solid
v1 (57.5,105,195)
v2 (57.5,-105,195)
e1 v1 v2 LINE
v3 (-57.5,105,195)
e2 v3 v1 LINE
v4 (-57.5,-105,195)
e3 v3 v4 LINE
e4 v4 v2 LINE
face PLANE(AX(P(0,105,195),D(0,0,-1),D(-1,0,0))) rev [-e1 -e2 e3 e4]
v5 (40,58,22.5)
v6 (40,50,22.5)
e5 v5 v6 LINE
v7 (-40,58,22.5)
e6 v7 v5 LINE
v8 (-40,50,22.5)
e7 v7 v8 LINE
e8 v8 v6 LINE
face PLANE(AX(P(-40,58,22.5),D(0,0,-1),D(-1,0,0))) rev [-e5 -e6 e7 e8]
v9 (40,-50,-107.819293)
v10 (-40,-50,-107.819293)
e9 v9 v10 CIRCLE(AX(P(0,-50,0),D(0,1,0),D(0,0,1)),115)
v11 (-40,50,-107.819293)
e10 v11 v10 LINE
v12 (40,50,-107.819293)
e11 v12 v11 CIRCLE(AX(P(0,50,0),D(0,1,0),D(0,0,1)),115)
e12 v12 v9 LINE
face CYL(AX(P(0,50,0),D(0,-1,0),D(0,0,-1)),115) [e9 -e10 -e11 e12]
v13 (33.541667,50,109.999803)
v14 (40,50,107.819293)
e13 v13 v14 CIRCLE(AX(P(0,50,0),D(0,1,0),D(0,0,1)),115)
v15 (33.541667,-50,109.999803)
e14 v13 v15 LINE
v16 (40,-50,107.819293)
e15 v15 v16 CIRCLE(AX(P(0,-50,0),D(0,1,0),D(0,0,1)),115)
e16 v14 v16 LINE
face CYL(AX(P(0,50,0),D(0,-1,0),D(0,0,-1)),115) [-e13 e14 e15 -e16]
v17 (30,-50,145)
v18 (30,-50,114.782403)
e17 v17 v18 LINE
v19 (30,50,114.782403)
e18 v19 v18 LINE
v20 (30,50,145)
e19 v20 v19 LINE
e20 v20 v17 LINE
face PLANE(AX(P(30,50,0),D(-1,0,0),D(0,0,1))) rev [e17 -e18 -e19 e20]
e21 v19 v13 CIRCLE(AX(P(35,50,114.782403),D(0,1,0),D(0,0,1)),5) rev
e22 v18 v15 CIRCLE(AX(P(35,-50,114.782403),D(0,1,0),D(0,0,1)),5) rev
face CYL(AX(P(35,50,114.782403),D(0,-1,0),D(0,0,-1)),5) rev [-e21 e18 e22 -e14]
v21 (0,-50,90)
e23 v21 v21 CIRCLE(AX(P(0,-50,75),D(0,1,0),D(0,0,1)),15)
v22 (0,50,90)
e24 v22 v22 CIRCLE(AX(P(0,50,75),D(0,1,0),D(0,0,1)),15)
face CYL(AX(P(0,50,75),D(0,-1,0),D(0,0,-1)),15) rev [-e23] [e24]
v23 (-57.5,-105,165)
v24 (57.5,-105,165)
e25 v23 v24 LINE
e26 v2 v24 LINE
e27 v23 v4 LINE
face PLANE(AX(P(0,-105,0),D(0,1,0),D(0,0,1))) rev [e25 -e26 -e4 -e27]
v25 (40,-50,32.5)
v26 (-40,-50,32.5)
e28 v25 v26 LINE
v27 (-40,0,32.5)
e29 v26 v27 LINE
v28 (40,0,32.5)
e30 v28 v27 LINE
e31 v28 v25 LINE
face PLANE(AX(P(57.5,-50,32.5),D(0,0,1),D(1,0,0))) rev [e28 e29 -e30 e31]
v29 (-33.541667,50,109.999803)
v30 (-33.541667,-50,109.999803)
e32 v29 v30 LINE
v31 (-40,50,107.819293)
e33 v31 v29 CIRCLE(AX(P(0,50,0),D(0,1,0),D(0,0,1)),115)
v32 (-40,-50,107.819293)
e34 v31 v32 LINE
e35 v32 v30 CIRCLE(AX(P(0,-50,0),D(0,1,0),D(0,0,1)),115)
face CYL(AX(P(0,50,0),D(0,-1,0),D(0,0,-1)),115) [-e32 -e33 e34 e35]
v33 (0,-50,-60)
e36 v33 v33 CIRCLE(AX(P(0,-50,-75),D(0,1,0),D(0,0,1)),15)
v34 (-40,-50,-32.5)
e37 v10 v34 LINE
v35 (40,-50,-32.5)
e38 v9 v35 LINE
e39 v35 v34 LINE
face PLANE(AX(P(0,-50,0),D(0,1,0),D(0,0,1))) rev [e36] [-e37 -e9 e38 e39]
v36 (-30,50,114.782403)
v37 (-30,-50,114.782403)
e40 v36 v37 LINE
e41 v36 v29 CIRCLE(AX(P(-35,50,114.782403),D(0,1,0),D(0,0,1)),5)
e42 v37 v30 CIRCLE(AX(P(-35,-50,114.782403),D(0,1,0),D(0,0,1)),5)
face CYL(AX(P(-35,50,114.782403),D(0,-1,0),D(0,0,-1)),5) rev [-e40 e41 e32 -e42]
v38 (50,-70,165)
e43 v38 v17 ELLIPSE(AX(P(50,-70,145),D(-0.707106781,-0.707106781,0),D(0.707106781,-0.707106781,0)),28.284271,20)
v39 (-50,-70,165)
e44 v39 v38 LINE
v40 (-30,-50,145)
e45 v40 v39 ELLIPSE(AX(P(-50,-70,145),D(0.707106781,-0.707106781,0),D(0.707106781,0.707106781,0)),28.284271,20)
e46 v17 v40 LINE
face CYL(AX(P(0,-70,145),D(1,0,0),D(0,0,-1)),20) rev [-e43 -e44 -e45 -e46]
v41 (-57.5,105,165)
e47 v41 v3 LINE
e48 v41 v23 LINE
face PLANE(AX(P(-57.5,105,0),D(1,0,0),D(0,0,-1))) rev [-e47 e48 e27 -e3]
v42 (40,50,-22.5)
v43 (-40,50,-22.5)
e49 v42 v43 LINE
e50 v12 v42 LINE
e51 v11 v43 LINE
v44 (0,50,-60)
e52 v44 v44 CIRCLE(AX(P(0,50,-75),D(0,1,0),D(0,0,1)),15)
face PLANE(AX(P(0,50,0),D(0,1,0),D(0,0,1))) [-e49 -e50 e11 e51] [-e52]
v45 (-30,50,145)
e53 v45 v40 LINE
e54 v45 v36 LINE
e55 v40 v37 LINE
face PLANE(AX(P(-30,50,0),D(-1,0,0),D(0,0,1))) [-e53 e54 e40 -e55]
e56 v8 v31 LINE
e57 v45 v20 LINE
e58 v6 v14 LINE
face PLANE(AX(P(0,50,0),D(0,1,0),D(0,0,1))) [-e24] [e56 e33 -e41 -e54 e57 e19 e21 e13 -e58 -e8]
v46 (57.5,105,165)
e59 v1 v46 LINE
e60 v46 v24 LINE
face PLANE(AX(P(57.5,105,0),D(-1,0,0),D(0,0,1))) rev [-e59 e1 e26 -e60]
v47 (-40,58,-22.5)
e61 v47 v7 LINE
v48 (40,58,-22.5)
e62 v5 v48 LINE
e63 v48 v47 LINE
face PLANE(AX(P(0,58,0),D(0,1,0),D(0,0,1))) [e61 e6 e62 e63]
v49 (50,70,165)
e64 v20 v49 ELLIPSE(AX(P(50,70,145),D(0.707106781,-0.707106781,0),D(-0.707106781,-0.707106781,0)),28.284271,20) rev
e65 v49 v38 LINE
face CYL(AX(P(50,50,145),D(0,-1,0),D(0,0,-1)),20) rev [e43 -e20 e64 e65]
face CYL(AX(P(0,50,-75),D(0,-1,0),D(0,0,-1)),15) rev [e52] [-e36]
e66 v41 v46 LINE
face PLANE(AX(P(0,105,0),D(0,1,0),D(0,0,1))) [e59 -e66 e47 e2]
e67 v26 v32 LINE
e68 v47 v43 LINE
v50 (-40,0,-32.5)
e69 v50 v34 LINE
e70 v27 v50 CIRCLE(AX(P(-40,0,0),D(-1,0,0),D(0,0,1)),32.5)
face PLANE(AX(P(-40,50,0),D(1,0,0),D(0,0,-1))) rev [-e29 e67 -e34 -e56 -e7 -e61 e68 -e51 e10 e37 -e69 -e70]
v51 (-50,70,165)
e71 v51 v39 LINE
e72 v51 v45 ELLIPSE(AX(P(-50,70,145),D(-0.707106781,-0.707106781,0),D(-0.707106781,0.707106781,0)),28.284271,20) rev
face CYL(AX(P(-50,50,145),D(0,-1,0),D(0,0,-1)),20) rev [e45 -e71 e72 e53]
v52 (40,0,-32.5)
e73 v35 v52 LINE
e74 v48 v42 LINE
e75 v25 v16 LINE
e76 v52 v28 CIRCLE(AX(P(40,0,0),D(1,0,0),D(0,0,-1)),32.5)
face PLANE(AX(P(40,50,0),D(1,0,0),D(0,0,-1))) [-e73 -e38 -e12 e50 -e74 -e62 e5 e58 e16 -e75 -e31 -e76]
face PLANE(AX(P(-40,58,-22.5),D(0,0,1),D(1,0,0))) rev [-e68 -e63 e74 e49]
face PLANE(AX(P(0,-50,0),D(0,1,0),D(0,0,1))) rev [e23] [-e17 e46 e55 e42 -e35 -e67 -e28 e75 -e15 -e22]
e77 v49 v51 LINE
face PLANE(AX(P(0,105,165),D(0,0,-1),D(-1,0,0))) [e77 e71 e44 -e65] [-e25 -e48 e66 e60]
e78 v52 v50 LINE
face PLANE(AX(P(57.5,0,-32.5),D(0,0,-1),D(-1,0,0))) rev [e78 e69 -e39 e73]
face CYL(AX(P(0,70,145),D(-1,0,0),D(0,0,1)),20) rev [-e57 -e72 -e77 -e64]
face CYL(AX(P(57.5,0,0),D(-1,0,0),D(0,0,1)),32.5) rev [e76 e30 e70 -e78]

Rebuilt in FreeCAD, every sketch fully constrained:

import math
import FreeCAD as App
import Part
import Sketcher

V = App.Vector


def edges_at(feature, points):
    """Names of the edges that pass closest to the given points."""
    edges = feature.Shape.Edges
    near = lambda p: min(range(len(edges)), key=lambda i: edges[i].distToShape(Part.Vertex(*p))[0])
    return sorted({f"Edge{near(p) + 1}" for p in points})


def add_polygon(sketch, points):
    """Adds a closed chain of lines whose ends are joined by coincident constraints."""
    first, n = sketch.GeometryCount, len(points)
    for a, b in zip(points, points[1:] + points[:1]):
        sketch.addGeometry(Part.LineSegment(App.Vector(*a, 0), App.Vector(*b, 0)), False)
    for i in range(n):
        sketch.addConstraint(Sketcher.Constraint("Coincident", first + i, 2, first + (i + 1) % n, 1))

doc = App.newDocument("Part")
params = doc.addObject("Spreadsheet::Sheet", "Params")
for row, (alias, value) in enumerate([
    ("sketch1_diameter", "30 mm"),
    ("sketch1_radius", "20 mm"),
    ("sketch1_radius2", "5 mm"),
    ("sketch1_radius3", "115 mm"),
    ("sketch1_width", "100 mm"),
    ("pad1_length", "100 mm"),
    ("sketch2_width", "115 mm"),
    ("sketch2_height", "30 mm"),
    ("pad2_length", "210 mm"),
    ("sketch3_width", "80 mm"),
    ("sketch3_height", "45 mm"),
    ("pad3_length", "8 mm"),
    ("sketch4_width", "80 mm"),
    ("sketch4_height", "45 mm"),
    ("pocket1_length", "8 mm"),
    ("sketch5_radius", "32.5 mm"),
    ("sketch5_width", "50 mm"),
    ("fillet_radius", "20 mm"),
], start=1):
    params.set(f"A{row}", alias)
    params.set(f"B{row}", "=" + value)
    params.setAlias(f"B{row}", alias)

body = doc.addObject("PartDesign::Body", "Body")

# Sketch on XZ plane
sketch1 = body.newObject("Sketcher::SketchObject", "Sketch")
sketch1.AttachmentSupport = (doc.getObject("XZ_Plane"), [""])
sketch1.MapMode = "FlatFace"
sketch1.addGeometry([
    Part.ArcOfCircle(Part.Circle(V(-50, 145, 0), V(0, 0, 1), 20), math.radians(0), math.radians(90)),  # 0
    Part.LineSegment(V(-50, 165, 0), V(50, 165, 0)),  # 1
    Part.ArcOfCircle(Part.Circle(V(50, 145, 0), V(0, 0, 1), 20), math.radians(90), math.radians(180)),  # 2
    Part.LineSegment(V(30, 145, 0), V(30, 115, 0)),  # 3
    Part.ArcOfCircle(Part.Circle(V(35, 115, 0), V(0, 0, 1), 5), math.radians(180), math.radians(253)),  # 4
    Part.ArcOfCircle(Part.Circle(V(0, 0, 0), V(0, 0, 1), 115), math.radians(69.65), math.radians(73.04)),  # 5
    Part.LineSegment(V(40, 108, 0), V(40, -108, 0)),  # 6
    Part.ArcOfCircle(Part.Circle(V(0, 0, 0), V(0, 0, 1), 115), math.radians(-110), math.radians(-70)),  # 7
    Part.LineSegment(V(-40, -108, 0), V(-40, 108, 0)),  # 8
    Part.ArcOfCircle(Part.Circle(V(0, 0, 0), V(0, 0, 1), 115), math.radians(106.96), math.radians(110.35)),  # 9
    Part.ArcOfCircle(Part.Circle(V(-35, 115, 0), V(0, 0, 1), 5), math.radians(-73), math.radians(0)),  # 10
    Part.LineSegment(V(-30, 115, 0), V(-30, 145, 0)),  # 11
    Part.Circle(V(0, 75, 0), V(0, 0, 1), 15),  # 12
    Part.Circle(V(0, -75, 0), V(0, 0, 1), 15),  # 13
], False)
sketch1.addConstraint([
    Sketcher.Constraint("Tangent", 0, 2, 1, 1),
    Sketcher.Constraint("Tangent", 1, 2, 2, 1),
    Sketcher.Constraint("Tangent", 2, 2, 3, 1),
    Sketcher.Constraint("Tangent", 3, 2, 4, 1),
    Sketcher.Constraint("Tangent", 4, 2, 5, 2),
    Sketcher.Constraint("Coincident", 5, 1, 6, 1),
    Sketcher.Constraint("Coincident", 6, 2, 7, 2),
    Sketcher.Constraint("Coincident", 7, 1, 8, 1),
    Sketcher.Constraint("Coincident", 8, 2, 9, 2),
    Sketcher.Constraint("Tangent", 9, 1, 10, 1),
    Sketcher.Constraint("Tangent", 10, 2, 11, 1),
    Sketcher.Constraint("Tangent", 11, 2, 0, 1),
    Sketcher.Constraint("Horizontal", 1),
    Sketcher.Constraint("Vertical", 3),
    Sketcher.Constraint("Vertical", 6),
    Sketcher.Constraint("Vertical", 8),
    Sketcher.Constraint("Vertical", 11),
    Sketcher.Constraint("Coincident", 5, 3, -1, 1),
    Sketcher.Constraint("Coincident", 7, 3, -1, 1),
    Sketcher.Constraint("Coincident", 9, 3, -1, 1),
    Sketcher.Constraint("Equal", 0, 2),
    Sketcher.Constraint("Equal", 5, 7),
    Sketcher.Constraint("Equal", 7, 9),
    Sketcher.Constraint("Equal", 4, 10),
    Sketcher.Constraint("Equal", 12, 13),
    Sketcher.Constraint("Symmetric", 12, 3, 13, 3, -1, 1),
    Sketcher.Constraint("PointOnObject", 12, 3, -2),
    Sketcher.Constraint("Horizontal", 4, 3, 10, 3),
    Sketcher.Constraint("Horizontal", 6, 2, 7, 1),
    Sketcher.Constraint("Diameter", 12, 30.0),
    Sketcher.Constraint("Radius", 0, 20.0),
    Sketcher.Constraint("Radius", 4, 5.0),
    Sketcher.Constraint("Radius", 5, 115.0),
    Sketcher.Constraint("DistanceX", 1, 1, 1, 2, 100.0),
    Sketcher.Constraint("DistanceY", -1, 1, 0, 3, 145.0),
    Sketcher.Constraint("DistanceY", -1, 1, 12, 3, 75.0),
    Sketcher.Constraint("DistanceX", -1, 1, 5, 1, 40.0),
])
sketch1.setExpression("Constraints[29]", "Params.sketch1_diameter")
sketch1.setExpression("Constraints[30]", "Params.sketch1_radius")
sketch1.setExpression("Constraints[31]", "Params.sketch1_radius2")
sketch1.setExpression("Constraints[32]", "Params.sketch1_radius3")
sketch1.setExpression("Constraints[33]", "Params.sketch1_width")
pad1 = body.newObject("PartDesign::Pad", "Pad")
pad1.Profile = sketch1
pad1.setExpression("Length", "Params.pad1_length")
pad1.Midplane = True

# Sketch on XZ plane
sketch2 = body.newObject("Sketcher::SketchObject", "Sketch001")
sketch2.AttachmentSupport = (doc.getObject("XZ_Plane"), [""])
sketch2.MapMode = "FlatFace"
add_polygon(sketch2, [(-58, 195), (58, 195), (58, 165), (-58, 165)])  # lines 0-3
sketch2.addConstraint([
    Sketcher.Constraint("Horizontal", 0),
    Sketcher.Constraint("Vertical", 1),
    Sketcher.Constraint("Horizontal", 2),
    Sketcher.Constraint("Vertical", 3),
    Sketcher.Constraint("DistanceX", 0, 1, 0, 2, 115.0),
    Sketcher.Constraint("DistanceY", 1, 2, 1, 1, 30.0),
    Sketcher.Constraint("DistanceY", -1, 1, 0, 2, 195.0),
    Sketcher.Constraint("DistanceX", -1, 1, 0, 2, 57.5),
])
sketch2.setExpression("Constraints[8]", "Params.sketch2_width")
sketch2.setExpression("Constraints[9]", "Params.sketch2_height")
pad2 = body.newObject("PartDesign::Pad", "Pad001")
pad2.Profile = sketch2
pad2.setExpression("Length", "Params.pad2_length")
pad2.Midplane = True

# Sketch on XZ plane
sketch3 = body.newObject("Sketcher::SketchObject", "Sketch002")
sketch3.AttachmentSupport = (doc.getObject("XZ_Plane"), [""])
sketch3.MapMode = "FlatFace"
sketch3.AttachmentOffset = App.Placement(V(0, 0, -50), App.Rotation())
add_polygon(sketch3, [(-40, -22), (-40, 22), (40, 22), (40, -22)])  # lines 0-3
sketch3.addConstraint([
    Sketcher.Constraint("Vertical", 0),
    Sketcher.Constraint("Horizontal", 1),
    Sketcher.Constraint("Vertical", 2),
    Sketcher.Constraint("Horizontal", 3),
    Sketcher.Constraint("Symmetric", 0, 2, 2, 2, -1, 1),
    Sketcher.Constraint("DistanceX", 1, 1, 1, 2, 80.0),
    Sketcher.Constraint("DistanceY", 0, 1, 0, 2, 45.0),
])
sketch3.setExpression("Constraints[9]", "Params.sketch3_width")
sketch3.setExpression("Constraints[10]", "Params.sketch3_height")
pad3 = body.newObject("PartDesign::Pad", "Pad002")
pad3.Profile = sketch3
pad3.setExpression("Length", "Params.pad3_length")
pad3.Reversed = True

# Sketch on XZ plane
sketch4 = body.newObject("Sketcher::SketchObject", "Sketch003")
sketch4.AttachmentSupport = (doc.getObject("XZ_Plane"), [""])
sketch4.MapMode = "FlatFace"
sketch4.AttachmentOffset = App.Placement(V(0, 0, 50), App.Rotation())
add_polygon(sketch4, [(40, 22), (-40, 22), (-40, -22), (40, -22)])  # lines 0-3
sketch4.addConstraint([
    Sketcher.Constraint("Horizontal", 0),
    Sketcher.Constraint("Vertical", 1),
    Sketcher.Constraint("Horizontal", 2),
    Sketcher.Constraint("Vertical", 3),
    Sketcher.Constraint("Symmetric", 0, 2, 2, 2, -1, 1),
    Sketcher.Constraint("DistanceX", 0, 2, 0, 1, 80.0),
    Sketcher.Constraint("DistanceY", 1, 2, 1, 1, 45.0),
])
sketch4.setExpression("Constraints[9]", "Params.sketch4_width")
sketch4.setExpression("Constraints[10]", "Params.sketch4_height")
pocket1 = body.newObject("PartDesign::Pocket", "Pocket")
pocket1.Profile = sketch4
pocket1.setExpression("Length", "Params.pocket1_length")

# Sketch on YZ plane
sketch5 = body.newObject("Sketcher::SketchObject", "Sketch004")
sketch5.AttachmentSupport = (doc.getObject("YZ_Plane"), [""])
sketch5.MapMode = "FlatFace"
sketch5.AttachmentOffset = App.Placement(V(0, 0, -40), App.Rotation())
sketch5.addGeometry([
    Part.LineSegment(V(0, -32, 0), V(-50, -32, 0)),
    Part.LineSegment(V(-50, -32, 0), V(-50, 32, 0)),
    Part.LineSegment(V(-50, 32, 0), V(0, 32, 0)),
    Part.ArcOfCircle(Part.Circle(V(0, 0, 0), V(0, 0, 1), 32), math.radians(-90), math.radians(90)),
], False)
sketch5.addConstraint([
    Sketcher.Constraint("Coincident", 0, 2, 1, 1),
    Sketcher.Constraint("Coincident", 1, 2, 2, 1),
    Sketcher.Constraint("Tangent", 2, 2, 3, 2),
    Sketcher.Constraint("Tangent", 3, 1, 0, 1),
    Sketcher.Constraint("Horizontal", 0),
    Sketcher.Constraint("Vertical", 1),
    Sketcher.Constraint("Horizontal", 2),
    Sketcher.Constraint("Coincident", 3, 3, -1, 1),
    Sketcher.Constraint("Radius", 3, 32.5),
    Sketcher.Constraint("DistanceX", 0, 2, 0, 1, 50.0),
])
sketch5.setExpression("Constraints[8]", "Params.sketch5_radius")
sketch5.setExpression("Constraints[9]", "Params.sketch5_width")
pocket2 = body.newObject("PartDesign::Pocket", "Pocket001")
pocket2.Profile = sketch5
pocket2.Type = "ThroughAll"
pocket2.Reversed = True
doc.recompute()

fillet = body.newObject("PartDesign::Fillet", "Fillet")
fillet.Base = (pocket2, edges_at(pocket2, [(0, 50, 165), (0, -50, 165)]))
fillet.setExpression("Radius", "Params.fillet_radius")

doc.recompute()
